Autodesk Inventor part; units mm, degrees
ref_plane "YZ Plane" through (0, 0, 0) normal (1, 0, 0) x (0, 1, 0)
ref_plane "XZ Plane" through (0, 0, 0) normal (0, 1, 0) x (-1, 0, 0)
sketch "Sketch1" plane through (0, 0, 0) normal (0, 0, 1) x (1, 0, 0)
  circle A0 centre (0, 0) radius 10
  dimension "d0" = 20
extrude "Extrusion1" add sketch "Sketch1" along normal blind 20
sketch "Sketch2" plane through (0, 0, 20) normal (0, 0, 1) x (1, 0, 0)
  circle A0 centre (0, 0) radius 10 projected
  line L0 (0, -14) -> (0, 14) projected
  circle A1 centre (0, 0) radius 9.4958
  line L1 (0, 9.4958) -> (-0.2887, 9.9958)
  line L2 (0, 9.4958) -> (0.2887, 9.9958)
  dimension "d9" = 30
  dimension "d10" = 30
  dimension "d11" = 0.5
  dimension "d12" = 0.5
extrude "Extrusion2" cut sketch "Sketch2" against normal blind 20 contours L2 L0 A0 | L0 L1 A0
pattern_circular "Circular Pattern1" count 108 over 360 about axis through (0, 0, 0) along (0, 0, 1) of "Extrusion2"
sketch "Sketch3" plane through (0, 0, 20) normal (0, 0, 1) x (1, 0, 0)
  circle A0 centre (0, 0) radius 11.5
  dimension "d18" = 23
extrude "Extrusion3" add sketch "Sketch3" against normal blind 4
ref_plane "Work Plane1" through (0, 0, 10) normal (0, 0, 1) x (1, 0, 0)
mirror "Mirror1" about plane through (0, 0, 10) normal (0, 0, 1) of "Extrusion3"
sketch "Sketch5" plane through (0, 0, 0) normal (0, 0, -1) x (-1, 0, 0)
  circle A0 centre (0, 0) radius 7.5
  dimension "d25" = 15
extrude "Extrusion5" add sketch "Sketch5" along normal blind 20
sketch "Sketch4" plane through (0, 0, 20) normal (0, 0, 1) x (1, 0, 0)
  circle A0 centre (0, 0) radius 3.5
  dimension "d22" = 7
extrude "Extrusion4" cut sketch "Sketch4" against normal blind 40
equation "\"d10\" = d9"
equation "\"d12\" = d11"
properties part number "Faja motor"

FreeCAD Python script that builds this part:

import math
import FreeCAD as App
import Part
import Sketcher
Q = App.Units.Quantity

doc = App.newDocument("Part")
body = doc.addObject("PartDesign::Body", "Body")

# Sketch on XY plane
sketch1 = body.newObject("Sketcher::SketchObject", "Sketch")
sketch1.AttachmentSupport = (doc.getObject("XY_Plane"), [""])
sketch1.MapMode = "FlatFace"
sketch1.addGeometry(Part.Circle(App.Vector(0, 0, 0), App.Vector(0, 0, 1), 10), False)
sketch1.addConstraint([
    Sketcher.Constraint("Coincident", 0, 3, -1, 1),
    Sketcher.Constraint("Diameter", 0, Q("20 mm")),
])
pad1 = body.newObject("PartDesign::Pad", "Pad")
pad1.Profile = sketch1
pad1.Length = 20

# Sketch on XY plane
sketch2 = body.newObject("Sketcher::SketchObject", "Sketch001")
sketch2.AttachmentSupport = (doc.getObject("XY_Plane"), [""])
sketch2.MapMode = "FlatFace"
sketch2.AttachmentOffset = App.Placement(App.Vector(0, 0, 20), App.Rotation())
sketch2.addGeometry([
    Part.LineSegment(App.Vector(0, 9.5, 0), App.Vector(0.3, 10, 0)),
    Part.ArcOfCircle(Part.Circle(App.Vector(0, 0, 0), App.Vector(0, 0, 1), 10), math.radians(88.35), math.radians(91.65)),
    Part.LineSegment(App.Vector(-0.3, 10, 0), App.Vector(0, 9.5, 0)),
], False)
sketch2.addConstraint([
    Sketcher.Constraint("Coincident", 0, 2, 1, 1),
    Sketcher.Constraint("Coincident", 1, 2, 2, 1),
    Sketcher.Constraint("Coincident", 2, 2, 0, 1),
    Sketcher.Constraint("Coincident", 1, 3, -1, 1),
    Sketcher.Constraint("PointOnObject", 2, 2, -2),
    Sketcher.Constraint("Horizontal", 0, 2, 1, 2),
    Sketcher.Constraint("Radius", 1, Q("10 mm")),
    Sketcher.Constraint("DistanceY", 2, 2, 0, 2, Q("0.5 mm")),
    Sketcher.Constraint("Distance", 0, Q("0.5774 mm")),
])
pocket1 = body.newObject("PartDesign::Pocket", "Pocket")
pocket1.Profile = sketch2
pocket1.Length = 20
doc.recompute()

polarpattern = body.newObject("PartDesign::PolarPattern", "PolarPattern")
polarpattern.Originals = [pocket1]
polarpattern.Axis = (doc.getObject("Z_Axis"), [""])
polarpattern.Angle = 360
polarpattern.Occurrences = 108
body.Tip = polarpattern

# Sketch on XY plane
sketch3 = body.newObject("Sketcher::SketchObject", "Sketch002")
sketch3.AttachmentSupport = (doc.getObject("XY_Plane"), [""])
sketch3.MapMode = "FlatFace"
sketch3.AttachmentOffset = App.Placement(App.Vector(0, 0, 20), App.Rotation())
sketch3.addGeometry(Part.Circle(App.Vector(0, 0, 0), App.Vector(0, 0, 1), 12), False)
sketch3.addConstraint([
    Sketcher.Constraint("Coincident", 0, 3, -1, 1),
    Sketcher.Constraint("Diameter", 0, Q("23 mm")),
])
pad2 = body.newObject("PartDesign::Pad", "Pad001")
pad2.Profile = sketch3
pad2.Length = 4
pad2.Reversed = True
doc.recompute()

datumplane = body.newObject("PartDesign::Plane", "DatumPlane")
datumplane.AttachmentSupport = (doc.getObject("XY_Plane"), [""])
datumplane.MapMode = "FlatFace"
datumplane.AttachmentOffset = App.Placement(App.Vector(0, 0, 10), App.Rotation())
mirrored = body.newObject("PartDesign::Mirrored", "Mirrored")
mirrored.Originals = [pad2]
mirrored.MirrorPlane = (datumplane, [""])
body.Tip = mirrored

# Sketch on XY plane
sketch4 = body.newObject("Sketcher::SketchObject", "Sketch003")
sketch4.AttachmentSupport = (doc.getObject("XY_Plane"), [""])
sketch4.MapMode = "FlatFace"
sketch4.addGeometry(Part.Circle(App.Vector(0, 0, 0), App.Vector(0, 0, 1), 8), False)
sketch4.addConstraint([
    Sketcher.Constraint("Coincident", 0, 3, -1, 1),
    Sketcher.Constraint("Diameter", 0, Q("15 mm")),
])
pad3 = body.newObject("PartDesign::Pad", "Pad002")
pad3.Profile = sketch4
pad3.Length = 20
pad3.Reversed = True

# Sketch on XY plane
sketch5 = body.newObject("Sketcher::SketchObject", "Sketch004")
sketch5.AttachmentSupport = (doc.getObject("XY_Plane"), [""])
sketch5.MapMode = "FlatFace"
sketch5.AttachmentOffset = App.Placement(App.Vector(0, 0, 20), App.Rotation())
sketch5.addGeometry(Part.Circle(App.Vector(0, 0, 0), App.Vector(0, 0, 1), 3.5), False)
sketch5.addConstraint([
    Sketcher.Constraint("Coincident", 0, 3, -1, 1),
    Sketcher.Constraint("Diameter", 0, Q("7 mm")),
])
pocket2 = body.newObject("PartDesign::Pocket", "Pocket001")
pocket2.Profile = sketch5
pocket2.Length = 40

doc.recompute()
